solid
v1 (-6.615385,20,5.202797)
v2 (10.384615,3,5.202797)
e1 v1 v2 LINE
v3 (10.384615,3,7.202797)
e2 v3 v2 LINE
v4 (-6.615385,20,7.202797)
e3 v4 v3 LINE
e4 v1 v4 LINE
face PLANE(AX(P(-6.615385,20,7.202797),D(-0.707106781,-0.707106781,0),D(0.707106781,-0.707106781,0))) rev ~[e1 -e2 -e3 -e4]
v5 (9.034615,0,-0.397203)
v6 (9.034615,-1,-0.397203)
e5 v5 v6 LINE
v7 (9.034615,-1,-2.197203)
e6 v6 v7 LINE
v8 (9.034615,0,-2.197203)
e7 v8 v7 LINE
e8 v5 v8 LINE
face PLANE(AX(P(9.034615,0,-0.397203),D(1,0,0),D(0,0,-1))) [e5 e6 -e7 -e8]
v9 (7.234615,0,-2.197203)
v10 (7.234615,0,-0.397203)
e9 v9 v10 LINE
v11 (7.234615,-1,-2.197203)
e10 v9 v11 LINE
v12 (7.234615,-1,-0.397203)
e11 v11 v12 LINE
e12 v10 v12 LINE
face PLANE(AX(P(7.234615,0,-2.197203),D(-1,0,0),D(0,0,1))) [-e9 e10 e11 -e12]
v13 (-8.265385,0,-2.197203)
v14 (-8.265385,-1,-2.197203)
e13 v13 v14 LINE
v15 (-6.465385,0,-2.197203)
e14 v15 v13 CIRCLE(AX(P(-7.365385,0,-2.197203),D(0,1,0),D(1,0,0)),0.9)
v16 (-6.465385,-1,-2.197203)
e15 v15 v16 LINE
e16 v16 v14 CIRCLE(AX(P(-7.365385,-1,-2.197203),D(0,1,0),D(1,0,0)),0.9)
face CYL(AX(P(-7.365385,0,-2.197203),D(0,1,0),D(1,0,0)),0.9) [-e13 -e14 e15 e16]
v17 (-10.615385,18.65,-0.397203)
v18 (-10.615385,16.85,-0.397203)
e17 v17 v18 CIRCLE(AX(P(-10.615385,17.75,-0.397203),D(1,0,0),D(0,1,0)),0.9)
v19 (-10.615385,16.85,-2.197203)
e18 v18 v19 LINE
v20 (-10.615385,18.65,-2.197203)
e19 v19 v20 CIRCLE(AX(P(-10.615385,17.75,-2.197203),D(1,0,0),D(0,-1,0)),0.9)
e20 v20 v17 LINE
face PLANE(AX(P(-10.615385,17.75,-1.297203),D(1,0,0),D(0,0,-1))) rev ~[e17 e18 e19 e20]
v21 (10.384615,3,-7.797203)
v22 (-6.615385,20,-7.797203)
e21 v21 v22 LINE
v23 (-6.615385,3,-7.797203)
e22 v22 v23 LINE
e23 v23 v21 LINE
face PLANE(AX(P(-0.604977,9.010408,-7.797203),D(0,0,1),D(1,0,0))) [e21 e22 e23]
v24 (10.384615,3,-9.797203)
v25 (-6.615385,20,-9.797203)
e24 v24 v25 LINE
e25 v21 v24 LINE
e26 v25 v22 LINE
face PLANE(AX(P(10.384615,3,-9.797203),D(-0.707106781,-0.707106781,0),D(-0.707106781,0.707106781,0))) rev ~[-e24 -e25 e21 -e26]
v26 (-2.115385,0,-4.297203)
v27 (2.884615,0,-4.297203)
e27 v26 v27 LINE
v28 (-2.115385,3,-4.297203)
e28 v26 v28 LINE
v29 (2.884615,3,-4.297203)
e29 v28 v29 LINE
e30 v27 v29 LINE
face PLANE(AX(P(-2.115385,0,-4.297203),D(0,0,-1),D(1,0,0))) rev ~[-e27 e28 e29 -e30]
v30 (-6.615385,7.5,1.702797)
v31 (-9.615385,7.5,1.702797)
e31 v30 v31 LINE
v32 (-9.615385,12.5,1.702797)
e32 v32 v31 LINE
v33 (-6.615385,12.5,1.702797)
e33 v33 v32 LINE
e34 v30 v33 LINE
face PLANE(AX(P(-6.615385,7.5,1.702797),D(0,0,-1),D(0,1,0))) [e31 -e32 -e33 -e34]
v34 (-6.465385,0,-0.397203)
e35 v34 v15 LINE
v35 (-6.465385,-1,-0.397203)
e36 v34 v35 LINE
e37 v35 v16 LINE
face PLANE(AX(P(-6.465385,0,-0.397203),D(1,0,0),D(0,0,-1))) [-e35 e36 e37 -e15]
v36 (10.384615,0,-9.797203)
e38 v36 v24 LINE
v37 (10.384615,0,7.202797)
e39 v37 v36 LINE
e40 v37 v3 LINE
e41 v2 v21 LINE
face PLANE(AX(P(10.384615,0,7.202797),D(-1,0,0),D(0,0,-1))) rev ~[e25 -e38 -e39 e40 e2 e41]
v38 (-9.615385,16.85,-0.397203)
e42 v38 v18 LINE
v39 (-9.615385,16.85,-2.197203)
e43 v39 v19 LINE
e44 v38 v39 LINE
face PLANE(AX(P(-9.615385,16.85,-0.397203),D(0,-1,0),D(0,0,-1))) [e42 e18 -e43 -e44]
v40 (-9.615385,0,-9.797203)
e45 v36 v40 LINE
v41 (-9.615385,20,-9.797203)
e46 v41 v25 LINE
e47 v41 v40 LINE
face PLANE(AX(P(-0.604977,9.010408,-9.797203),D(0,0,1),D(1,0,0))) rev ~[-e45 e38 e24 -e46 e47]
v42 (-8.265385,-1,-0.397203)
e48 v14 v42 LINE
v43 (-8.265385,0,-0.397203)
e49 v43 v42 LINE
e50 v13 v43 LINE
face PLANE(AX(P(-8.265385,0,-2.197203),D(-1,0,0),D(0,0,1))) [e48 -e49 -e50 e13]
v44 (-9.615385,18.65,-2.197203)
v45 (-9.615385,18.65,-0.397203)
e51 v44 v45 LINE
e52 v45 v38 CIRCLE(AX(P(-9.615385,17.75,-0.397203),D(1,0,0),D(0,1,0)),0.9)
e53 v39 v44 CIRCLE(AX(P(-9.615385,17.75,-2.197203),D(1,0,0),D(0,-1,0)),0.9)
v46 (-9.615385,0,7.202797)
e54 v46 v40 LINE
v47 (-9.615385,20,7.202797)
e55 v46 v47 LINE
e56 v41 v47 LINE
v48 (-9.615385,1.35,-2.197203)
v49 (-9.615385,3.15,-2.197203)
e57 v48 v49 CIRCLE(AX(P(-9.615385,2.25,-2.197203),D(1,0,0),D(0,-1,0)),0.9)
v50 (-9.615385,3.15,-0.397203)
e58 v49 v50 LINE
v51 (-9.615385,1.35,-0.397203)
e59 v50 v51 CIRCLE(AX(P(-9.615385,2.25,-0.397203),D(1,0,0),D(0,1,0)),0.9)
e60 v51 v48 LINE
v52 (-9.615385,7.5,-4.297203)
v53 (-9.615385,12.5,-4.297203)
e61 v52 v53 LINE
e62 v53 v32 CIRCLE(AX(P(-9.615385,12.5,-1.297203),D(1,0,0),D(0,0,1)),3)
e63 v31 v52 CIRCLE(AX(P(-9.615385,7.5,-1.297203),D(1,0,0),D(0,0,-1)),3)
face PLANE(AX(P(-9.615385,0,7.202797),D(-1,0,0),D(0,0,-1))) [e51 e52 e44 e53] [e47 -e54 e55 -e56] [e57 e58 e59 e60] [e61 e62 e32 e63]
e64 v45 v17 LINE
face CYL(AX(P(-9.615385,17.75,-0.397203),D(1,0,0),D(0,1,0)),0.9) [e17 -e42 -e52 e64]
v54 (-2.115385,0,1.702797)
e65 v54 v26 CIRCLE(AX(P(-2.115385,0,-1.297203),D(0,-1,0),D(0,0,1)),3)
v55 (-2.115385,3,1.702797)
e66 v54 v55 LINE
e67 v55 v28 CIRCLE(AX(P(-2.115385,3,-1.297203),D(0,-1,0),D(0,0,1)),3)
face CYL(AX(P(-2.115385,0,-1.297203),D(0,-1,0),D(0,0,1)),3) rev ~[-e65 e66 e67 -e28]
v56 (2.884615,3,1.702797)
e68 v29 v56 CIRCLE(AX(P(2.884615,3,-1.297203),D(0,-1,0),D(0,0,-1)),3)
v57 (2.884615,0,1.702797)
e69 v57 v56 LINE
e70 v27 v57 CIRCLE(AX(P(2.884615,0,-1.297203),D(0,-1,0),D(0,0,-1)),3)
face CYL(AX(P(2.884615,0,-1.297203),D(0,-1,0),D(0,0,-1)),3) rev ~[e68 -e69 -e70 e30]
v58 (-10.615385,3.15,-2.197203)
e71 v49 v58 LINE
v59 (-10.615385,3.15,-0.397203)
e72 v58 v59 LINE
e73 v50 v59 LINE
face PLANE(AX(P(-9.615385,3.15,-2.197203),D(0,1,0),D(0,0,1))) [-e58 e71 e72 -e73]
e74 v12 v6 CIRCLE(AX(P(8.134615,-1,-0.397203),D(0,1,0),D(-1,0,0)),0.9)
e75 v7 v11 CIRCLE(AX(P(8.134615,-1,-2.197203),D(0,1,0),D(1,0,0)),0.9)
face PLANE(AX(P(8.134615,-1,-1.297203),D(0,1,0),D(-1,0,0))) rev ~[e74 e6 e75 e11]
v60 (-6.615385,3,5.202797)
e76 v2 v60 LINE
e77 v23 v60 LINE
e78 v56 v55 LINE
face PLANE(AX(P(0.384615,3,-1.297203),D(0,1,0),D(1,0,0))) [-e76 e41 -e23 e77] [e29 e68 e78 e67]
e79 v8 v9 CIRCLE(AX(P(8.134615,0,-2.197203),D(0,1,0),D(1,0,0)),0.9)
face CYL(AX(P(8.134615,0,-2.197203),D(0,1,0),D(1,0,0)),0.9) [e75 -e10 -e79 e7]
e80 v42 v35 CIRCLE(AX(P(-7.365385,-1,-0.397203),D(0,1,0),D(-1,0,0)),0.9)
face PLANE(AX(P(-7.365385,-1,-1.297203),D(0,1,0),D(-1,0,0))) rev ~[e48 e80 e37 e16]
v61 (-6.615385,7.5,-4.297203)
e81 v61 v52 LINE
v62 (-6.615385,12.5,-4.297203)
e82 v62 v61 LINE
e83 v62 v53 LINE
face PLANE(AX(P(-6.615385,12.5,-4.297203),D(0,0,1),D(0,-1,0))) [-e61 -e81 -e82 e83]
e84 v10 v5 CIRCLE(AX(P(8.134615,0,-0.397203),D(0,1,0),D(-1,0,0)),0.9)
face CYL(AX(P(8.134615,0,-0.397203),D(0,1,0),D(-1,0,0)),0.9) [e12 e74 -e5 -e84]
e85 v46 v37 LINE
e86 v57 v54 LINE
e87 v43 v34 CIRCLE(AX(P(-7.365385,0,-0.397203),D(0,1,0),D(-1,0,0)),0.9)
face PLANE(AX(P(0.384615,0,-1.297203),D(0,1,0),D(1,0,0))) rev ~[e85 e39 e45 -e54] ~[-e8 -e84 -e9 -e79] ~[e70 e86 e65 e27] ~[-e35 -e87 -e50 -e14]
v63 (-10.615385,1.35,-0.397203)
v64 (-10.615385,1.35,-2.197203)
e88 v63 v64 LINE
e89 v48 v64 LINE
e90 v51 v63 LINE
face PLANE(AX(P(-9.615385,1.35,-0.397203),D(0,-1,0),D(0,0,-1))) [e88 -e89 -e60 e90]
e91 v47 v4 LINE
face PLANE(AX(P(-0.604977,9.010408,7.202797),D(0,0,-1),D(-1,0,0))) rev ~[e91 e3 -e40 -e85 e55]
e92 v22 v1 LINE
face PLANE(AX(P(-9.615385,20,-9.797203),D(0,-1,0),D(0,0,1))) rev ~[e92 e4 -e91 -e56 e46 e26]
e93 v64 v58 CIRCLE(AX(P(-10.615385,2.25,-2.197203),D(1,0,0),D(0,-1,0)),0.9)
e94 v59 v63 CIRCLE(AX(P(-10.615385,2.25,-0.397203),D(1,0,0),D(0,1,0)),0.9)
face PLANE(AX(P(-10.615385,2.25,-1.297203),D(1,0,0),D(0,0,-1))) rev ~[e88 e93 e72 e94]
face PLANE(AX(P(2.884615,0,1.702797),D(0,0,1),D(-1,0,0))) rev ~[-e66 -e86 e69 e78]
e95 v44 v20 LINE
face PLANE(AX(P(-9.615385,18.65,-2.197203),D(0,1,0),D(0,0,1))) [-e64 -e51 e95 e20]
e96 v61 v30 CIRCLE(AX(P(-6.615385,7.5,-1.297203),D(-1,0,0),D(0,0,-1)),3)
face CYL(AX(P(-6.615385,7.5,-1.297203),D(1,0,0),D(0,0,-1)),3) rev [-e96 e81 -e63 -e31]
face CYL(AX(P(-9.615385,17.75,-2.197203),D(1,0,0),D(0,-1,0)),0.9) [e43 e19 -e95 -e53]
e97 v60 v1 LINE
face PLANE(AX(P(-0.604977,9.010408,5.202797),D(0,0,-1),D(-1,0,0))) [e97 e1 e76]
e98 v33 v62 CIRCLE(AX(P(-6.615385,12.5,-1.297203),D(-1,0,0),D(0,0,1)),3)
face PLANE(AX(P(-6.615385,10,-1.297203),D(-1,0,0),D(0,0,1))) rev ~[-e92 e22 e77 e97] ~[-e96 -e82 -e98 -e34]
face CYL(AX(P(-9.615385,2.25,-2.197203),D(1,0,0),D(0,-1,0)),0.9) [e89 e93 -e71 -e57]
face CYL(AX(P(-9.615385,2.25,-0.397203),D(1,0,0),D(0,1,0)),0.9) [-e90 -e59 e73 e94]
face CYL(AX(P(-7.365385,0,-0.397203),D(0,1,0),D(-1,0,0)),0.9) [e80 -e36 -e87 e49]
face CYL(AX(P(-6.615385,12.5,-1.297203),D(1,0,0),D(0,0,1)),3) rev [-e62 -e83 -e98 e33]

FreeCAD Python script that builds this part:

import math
import FreeCAD as App
import Part
import Sketcher
from FreeCAD import Vector
Q = App.Units.Quantity


def add_polygon(sketch, points):
    """Adds a closed chain of lines whose ends are joined by coincident constraints."""
    first, n = sketch.GeometryCount, len(points)
    for a, b in zip(points, points[1:] + points[:1]):
        sketch.addGeometry(Part.LineSegment(App.Vector(*a, 0), App.Vector(*b, 0)), False)
    for i in range(n):
        sketch.addConstraint(Sketcher.Constraint("Coincident", first + i, 2, first + (i + 1) % n, 1))

doc = App.newDocument("Part")
params = doc.addObject("Spreadsheet::Sheet", "Params")
for row, (alias, value) in enumerate([
    ("sketch1_radius", "3 mm"),
    ("sketch1_width", "20 mm"),
    ("sketch1_width2", "5 mm"),
    ("sketch1_height", "17 mm"),
    ("pad1_length", "3 mm"),
    ("sketch2_width", "20 mm"),
    ("sketch2_height", "17 mm"),
    ("pad2_length", "3 mm"),
    ("sketch3_width", "17 mm"),
    ("pad3_length", "2 mm"),
    ("sketch4_width", "17 mm"),
    ("pad4_length", "2 mm"),
    ("sketch5_radius", "3 mm"),
    ("sketch5_width", "5 mm"),
    ("pocket1_length", "12 mm"),
    ("sketch6_radius", "0.9 mm"),
    ("sketch6_height", "1.8 mm"),
    ("pad5_length", "1 mm"),
    ("sketch7_radius", "0.9 mm"),
    ("sketch7_height", "1.8 mm"),
    ("pad6_length", "1 mm"),
], start=1):
    params.set(f"A{row}", alias)
    params.set(f"B{row}", "=" + value)
    params.setAlias(f"B{row}", alias)

body = doc.addObject("PartDesign::Body", "Body")

sketch1 = body.newObject("Sketcher::SketchObject", "Sketch")
sketch1.AttachmentSupport = (doc.getObject("XZ_Plane"), [""])
sketch1.MapMode = "FlatFace"
add_polygon(sketch1, [(-9.6, -9.8), (-9.6, 7.2), (10.4, 7.2), (10.4, -9.8)])
sketch1.addGeometry(Part.ArcOfCircle(Part.Circle(Vector(-2.1, -1.3, 0), Vector(0, 0, 1), 3), math.radians(90), math.radians(270)), False)
sketch1.addGeometry(Part.LineSegment(Vector(-2.1, -4.3, 0), Vector(2.9, -4.3, 0)), False)
sketch1.addGeometry(Part.ArcOfCircle(Part.Circle(Vector(2.9, -1.3, 0), Vector(0, 0, 1), 3), math.radians(-90), math.radians(90)), False)
sketch1.addGeometry(Part.LineSegment(Vector(2.9, 1.7, 0), Vector(-2.1, 1.7, 0)), False)
sketch1.addConstraint(Sketcher.Constraint("Tangent", 4, 2, 5, 1))
sketch1.addConstraint(Sketcher.Constraint("Tangent", 5, 2, 6, 1))
sketch1.addConstraint(Sketcher.Constraint("Tangent", 6, 2, 7, 1))
sketch1.addConstraint(Sketcher.Constraint("Tangent", 7, 2, 4, 1))
sketch1.addConstraint(Sketcher.Constraint("Vertical", 0))
sketch1.addConstraint(Sketcher.Constraint("Horizontal", 1))
sketch1.addConstraint(Sketcher.Constraint("Vertical", 2))
sketch1.addConstraint(Sketcher.Constraint("Horizontal", 3))
sketch1.addConstraint(Sketcher.Constraint("Horizontal", 5))
sketch1.addConstraint(Sketcher.Constraint("Horizontal", 7))
sketch1.addConstraint(Sketcher.Constraint("Radius", 4, Q("3 mm")))
sketch1.addConstraint(Sketcher.Constraint("DistanceX", 1, 1, 1, 2, Q("20 mm")))
sketch1.addConstraint(Sketcher.Constraint("DistanceX", 5, 1, 5, 2, Q("5 mm")))
sketch1.addConstraint(Sketcher.Constraint("DistanceY", 0, 1, 0, 2, Q("17 mm")))
sketch1.addConstraint(Sketcher.Constraint("DistanceX", 0, 2, 4, 3, Q("7.5 mm")))
sketch1.addConstraint(Sketcher.Constraint("DistanceY", 4, 3, 0, 2, Q("8.5 mm")))
sketch1.addConstraint(Sketcher.Constraint("DistanceX", 4, 3, -1, 1, Q("2.115385 mm")))
sketch1.addConstraint(Sketcher.Constraint("DistanceY", 4, 3, -1, 1, Q("1.297203 mm")))
sketch1.setExpression("Constraints[14]", "Params.sketch1_radius")
sketch1.setExpression("Constraints[15]", "Params.sketch1_width")
sketch1.setExpression("Constraints[16]", "Params.sketch1_width2")
sketch1.setExpression("Constraints[17]", "Params.sketch1_height")
pad1 = body.newObject("PartDesign::Pad", "Pad")
pad1.Profile = sketch1
pad1.setExpression("Length", "Params.pad1_length")
pad1.Reversed = True

sketch2 = body.newObject("Sketcher::SketchObject", "Sketch001")
sketch2.AttachmentSupport = (doc.getObject("YZ_Plane"), [""])
sketch2.MapMode = "FlatFace"
sketch2.AttachmentOffset = App.Placement(Vector(0, 0, -9.615385), App.Rotation())
add_polygon(sketch2, [(20, -10), (0, -10), (0, 7), (20, 7)])
sketch2.addConstraint(Sketcher.Constraint("Horizontal", 0))
sketch2.addConstraint(Sketcher.Constraint("Vertical", 1))
sketch2.addConstraint(Sketcher.Constraint("Horizontal", 2))
sketch2.addConstraint(Sketcher.Constraint("Vertical", 3))
sketch2.addConstraint(Sketcher.Constraint("PointOnObject", 0, 2, -2))
sketch2.addConstraint(Sketcher.Constraint("DistanceX", 0, 2, 0, 1, Q("20 mm")))
sketch2.addConstraint(Sketcher.Constraint("DistanceY", 1, 1, 1, 2, Q("17 mm")))
sketch2.addConstraint(Sketcher.Constraint("DistanceY", 0, 2, -1, 1, Q("9.797203 mm")))
sketch2.setExpression("Constraints[9]", "Params.sketch2_width")
sketch2.setExpression("Constraints[10]", "Params.sketch2_height")
pad2 = body.newObject("PartDesign::Pad", "Pad001")
pad2.Profile = sketch2
pad2.setExpression("Length", "Params.pad2_length")

sketch3 = body.newObject("Sketcher::SketchObject", "Sketch002")
sketch3.AttachmentSupport = (doc.getObject("XY_Plane"), [""])
sketch3.MapMode = "FlatFace"
sketch3.AttachmentOffset = App.Placement(Vector(0, 0, 7.202797), App.Rotation())
add_polygon(sketch3, [(10, 3), (-7, 20), (-7, 3)])
sketch3.addConstraint(Sketcher.Constraint("Vertical", 1))
sketch3.addConstraint(Sketcher.Constraint("Horizontal", 2))
sketch3.addConstraint(Sketcher.Constraint("Equal", 2, 1))
sketch3.addConstraint(Sketcher.Constraint("DistanceX", 2, 1, 2, 2, Q("17 mm")))
sketch3.addConstraint(Sketcher.Constraint("DistanceY", -1, 1, 0, 2, Q("20 mm")))
sketch3.addConstraint(Sketcher.Constraint("DistanceX", 0, 2, -1, 1, Q("6.615385 mm")))
sketch3.setExpression("Constraints[6]", "Params.sketch3_width")
pad3 = body.newObject("PartDesign::Pad", "Pad002")
pad3.Profile = sketch3
pad3.setExpression("Length", "Params.pad3_length")
pad3.Reversed = True

sketch4 = body.newObject("Sketcher::SketchObject", "Sketch003")
sketch4.AttachmentSupport = (doc.getObject("XY_Plane"), [""])
sketch4.MapMode = "FlatFace"
sketch4.AttachmentOffset = App.Placement(Vector(0, 0, -9.797203), App.Rotation())
add_polygon(sketch4, [(-7, 3), (-7, 20), (10, 3)])
sketch4.addConstraint(Sketcher.Constraint("Vertical", 0))
sketch4.addConstraint(Sketcher.Constraint("Horizontal", 2))
sketch4.addConstraint(Sketcher.Constraint("Equal", 2, 0))
sketch4.addConstraint(Sketcher.Constraint("DistanceX", 2, 2, 2, 1, Q("17 mm")))
sketch4.addConstraint(Sketcher.Constraint("DistanceY", -1, 1, 0, 2, Q("20 mm")))
sketch4.addConstraint(Sketcher.Constraint("DistanceX", 0, 2, -1, 1, Q("6.615385 mm")))
sketch4.setExpression("Constraints[6]", "Params.sketch4_width")
pad4 = body.newObject("PartDesign::Pad", "Pad003")
pad4.Profile = sketch4
pad4.setExpression("Length", "Params.pad4_length")

sketch5 = body.newObject("Sketcher::SketchObject", "Sketch004")
sketch5.AttachmentSupport = (doc.getObject("YZ_Plane"), [""])
sketch5.MapMode = "FlatFace"
sketch5.AttachmentOffset = App.Placement(Vector(0, 0, -6.615385), App.Rotation())
sketch5.addGeometry(Part.LineSegment(Vector(7.5, -4.3, 0), Vector(12.5, -4.3, 0)), False)
sketch5.addGeometry(Part.ArcOfCircle(Part.Circle(Vector(12.5, -1.3, 0), Vector(0, 0, 1), 3), math.radians(-90), math.radians(90)), False)
sketch5.addGeometry(Part.LineSegment(Vector(12.5, 1.7, 0), Vector(7.5, 1.7, 0)), False)
sketch5.addGeometry(Part.ArcOfCircle(Part.Circle(Vector(7.5, -1.3, 0), Vector(0, 0, 1), 3), math.radians(90), math.radians(270)), False)
sketch5.addConstraint(Sketcher.Constraint("Tangent", 0, 2, 1, 1))
sketch5.addConstraint(Sketcher.Constraint("Tangent", 1, 2, 2, 1))
sketch5.addConstraint(Sketcher.Constraint("Tangent", 2, 2, 3, 1))
sketch5.addConstraint(Sketcher.Constraint("Tangent", 3, 2, 0, 1))
sketch5.addConstraint(Sketcher.Constraint("Horizontal", 0))
sketch5.addConstraint(Sketcher.Constraint("Horizontal", 2))
sketch5.addConstraint(Sketcher.Constraint("Radius", 1, Q("3 mm")))
sketch5.addConstraint(Sketcher.Constraint("DistanceX", 0, 1, 0, 2, Q("5 mm")))
sketch5.addConstraint(Sketcher.Constraint("DistanceX", -1, 1, 1, 3, Q("12.5 mm")))
sketch5.addConstraint(Sketcher.Constraint("DistanceY", 1, 3, -1, 1, Q("1.297203 mm")))
sketch5.setExpression("Constraints[6]", "Params.sketch5_radius")
sketch5.setExpression("Constraints[7]", "Params.sketch5_width")
pocket1 = body.newObject("PartDesign::Pocket", "Pocket")
pocket1.Profile = sketch5
pocket1.setExpression("Length", "Params.pocket1_length")

sketch6 = body.newObject("Sketcher::SketchObject", "Sketch005")
sketch6.AttachmentSupport = (doc.getObject("YZ_Plane"), [""])
sketch6.MapMode = "FlatFace"
sketch6.AttachmentOffset = App.Placement(Vector(0, 0, -9.615385), App.Rotation())
sketch6.addGeometry(Part.LineSegment(Vector(18.6, -0.4, 0), Vector(18.6, -2.2, 0)), False)
sketch6.addGeometry(Part.ArcOfCircle(Part.Circle(Vector(17.8, -2.2, 0), Vector(0, 0, 1), 0.9), math.radians(180), math.radians(360)), False)
sketch6.addGeometry(Part.LineSegment(Vector(16.9, -2.2, 0), Vector(16.9, -0.4, 0)), False)
sketch6.addGeometry(Part.ArcOfCircle(Part.Circle(Vector(17.8, -0.4, 0), Vector(0, 0, 1), 0.9), math.radians(0), math.radians(180)), False)
sketch6.addGeometry(Part.LineSegment(Vector(3.1, -0.4, 0), Vector(3.1, -2.2, 0)), False)
sketch6.addGeometry(Part.ArcOfCircle(Part.Circle(Vector(2.2, -2.2, 0), Vector(0, 0, 1), 0.9), math.radians(180), math.radians(360)), False)
sketch6.addGeometry(Part.LineSegment(Vector(1.4, -2.2, 0), Vector(1.4, -0.4, 0)), False)
sketch6.addGeometry(Part.ArcOfCircle(Part.Circle(Vector(2.2, -0.4, 0), Vector(0, 0, 1), 0.9), math.radians(0), math.radians(180)), False)
sketch6.addConstraint(Sketcher.Constraint("Tangent", 0, 2, 1, 2))
sketch6.addConstraint(Sketcher.Constraint("Tangent", 1, 1, 2, 1))
sketch6.addConstraint(Sketcher.Constraint("Tangent", 2, 2, 3, 2))
sketch6.addConstraint(Sketcher.Constraint("Tangent", 3, 1, 0, 1))
sketch6.addConstraint(Sketcher.Constraint("Tangent", 4, 2, 5, 2))
sketch6.addConstraint(Sketcher.Constraint("Tangent", 5, 1, 6, 1))
sketch6.addConstraint(Sketcher.Constraint("Tangent", 6, 2, 7, 2))
sketch6.addConstraint(Sketcher.Constraint("Tangent", 7, 1, 4, 1))
sketch6.addConstraint(Sketcher.Constraint("Vertical", 0))
sketch6.addConstraint(Sketcher.Constraint("Vertical", 2))
sketch6.addConstraint(Sketcher.Constraint("Vertical", 4))
sketch6.addConstraint(Sketcher.Constraint("Vertical", 6))
sketch6.addConstraint(Sketcher.Constraint("Equal", 3, 5))
sketch6.addConstraint(Sketcher.Constraint("Horizontal", 1, 3, 5, 3))
sketch6.addConstraint(Sketcher.Constraint("Horizontal", 3, 3, 7, 3))
sketch6.addConstraint(Sketcher.Constraint("Radius", 1, Q("0.9 mm")))
sketch6.addConstraint(Sketcher.Constraint("DistanceY", 0, 2, 0, 1, Q("1.8 mm")))
sketch6.addConstraint(Sketcher.Constraint("DistanceX", 5, 3, 1, 3, Q("15.5 mm")))
sketch6.addConstraint(Sketcher.Constraint("DistanceX", -1, 1, 1, 3, Q("17.75 mm")))
sketch6.addConstraint(Sketcher.Constraint("DistanceY", 1, 3, -1, 1, Q("2.197203 mm")))
sketch6.setExpression("Constraints[15]", "Params.sketch6_radius")
sketch6.setExpression("Constraints[16]", "Params.sketch6_height")
pad5 = body.newObject("PartDesign::Pad", "Pad004")
pad5.Profile = sketch6
pad5.setExpression("Length", "Params.pad5_length")
pad5.Reversed = True

sketch7 = body.newObject("Sketcher::SketchObject", "Sketch006")
sketch7.AttachmentSupport = (doc.getObject("XZ_Plane"), [""])
sketch7.MapMode = "FlatFace"
sketch7.addGeometry(Part.LineSegment(Vector(-6.5, -2.2, 0), Vector(-6.5, -0.4, 0)), False)
sketch7.addGeometry(Part.ArcOfCircle(Part.Circle(Vector(-7.4, -0.4, 0), Vector(0, 0, 1), 0.9), math.radians(0), math.radians(180)), False)
sketch7.addGeometry(Part.LineSegment(Vector(-8.3, -0.4, 0), Vector(-8.3, -2.2, 0)), False)
sketch7.addGeometry(Part.ArcOfCircle(Part.Circle(Vector(-7.4, -2.2, 0), Vector(0, 0, 1), 0.9), math.radians(180), math.radians(360)), False)
sketch7.addGeometry(Part.LineSegment(Vector(9, -2.2, 0), Vector(9, -0.4, 0)), False)
sketch7.addGeometry(Part.ArcOfCircle(Part.Circle(Vector(8.1, -0.4, 0), Vector(0, 0, 1), 0.9), math.radians(0), math.radians(180)), False)
sketch7.addGeometry(Part.LineSegment(Vector(7.2, -0.4, 0), Vector(7.2, -2.2, 0)), False)
sketch7.addGeometry(Part.ArcOfCircle(Part.Circle(Vector(8.1, -2.2, 0), Vector(0, 0, 1), 0.9), math.radians(180), math.radians(360)), False)
sketch7.addConstraint(Sketcher.Constraint("Tangent", 0, 2, 1, 1))
sketch7.addConstraint(Sketcher.Constraint("Tangent", 1, 2, 2, 1))
sketch7.addConstraint(Sketcher.Constraint("Tangent", 2, 2, 3, 1))
sketch7.addConstraint(Sketcher.Constraint("Tangent", 3, 2, 0, 1))
sketch7.addConstraint(Sketcher.Constraint("Tangent", 4, 2, 5, 1))
sketch7.addConstraint(Sketcher.Constraint("Tangent", 5, 2, 6, 1))
sketch7.addConstraint(Sketcher.Constraint("Tangent", 6, 2, 7, 1))
sketch7.addConstraint(Sketcher.Constraint("Tangent", 7, 2, 4, 1))
sketch7.addConstraint(Sketcher.Constraint("Vertical", 0))
sketch7.addConstraint(Sketcher.Constraint("Vertical", 2))
sketch7.addConstraint(Sketcher.Constraint("Vertical", 4))
sketch7.addConstraint(Sketcher.Constraint("Vertical", 6))
sketch7.addConstraint(Sketcher.Constraint("Equal", 3, 5))
sketch7.addConstraint(Sketcher.Constraint("Horizontal", 1, 3, 5, 3))
sketch7.addConstraint(Sketcher.Constraint("Horizontal", 3, 3, 7, 3))
sketch7.addConstraint(Sketcher.Constraint("Radius", 1, Q("0.9 mm")))
sketch7.addConstraint(Sketcher.Constraint("DistanceY", 0, 1, 0, 2, Q("1.8 mm")))
sketch7.addConstraint(Sketcher.Constraint("DistanceX", 1, 3, 5, 3, Q("15.5 mm")))
sketch7.addConstraint(Sketcher.Constraint("DistanceX", 1, 3, -1, 1, Q("7.365385 mm")))
sketch7.addConstraint(Sketcher.Constraint("DistanceY", 1, 3, -1, 1, Q("0.397203 mm")))
sketch7.setExpression("Constraints[15]", "Params.sketch7_radius")
sketch7.setExpression("Constraints[16]", "Params.sketch7_height")
pad6 = body.newObject("PartDesign::Pad", "Pad005")
pad6.Profile = sketch7
pad6.setExpression("Length", "Params.pad6_length")

doc.recompute()
